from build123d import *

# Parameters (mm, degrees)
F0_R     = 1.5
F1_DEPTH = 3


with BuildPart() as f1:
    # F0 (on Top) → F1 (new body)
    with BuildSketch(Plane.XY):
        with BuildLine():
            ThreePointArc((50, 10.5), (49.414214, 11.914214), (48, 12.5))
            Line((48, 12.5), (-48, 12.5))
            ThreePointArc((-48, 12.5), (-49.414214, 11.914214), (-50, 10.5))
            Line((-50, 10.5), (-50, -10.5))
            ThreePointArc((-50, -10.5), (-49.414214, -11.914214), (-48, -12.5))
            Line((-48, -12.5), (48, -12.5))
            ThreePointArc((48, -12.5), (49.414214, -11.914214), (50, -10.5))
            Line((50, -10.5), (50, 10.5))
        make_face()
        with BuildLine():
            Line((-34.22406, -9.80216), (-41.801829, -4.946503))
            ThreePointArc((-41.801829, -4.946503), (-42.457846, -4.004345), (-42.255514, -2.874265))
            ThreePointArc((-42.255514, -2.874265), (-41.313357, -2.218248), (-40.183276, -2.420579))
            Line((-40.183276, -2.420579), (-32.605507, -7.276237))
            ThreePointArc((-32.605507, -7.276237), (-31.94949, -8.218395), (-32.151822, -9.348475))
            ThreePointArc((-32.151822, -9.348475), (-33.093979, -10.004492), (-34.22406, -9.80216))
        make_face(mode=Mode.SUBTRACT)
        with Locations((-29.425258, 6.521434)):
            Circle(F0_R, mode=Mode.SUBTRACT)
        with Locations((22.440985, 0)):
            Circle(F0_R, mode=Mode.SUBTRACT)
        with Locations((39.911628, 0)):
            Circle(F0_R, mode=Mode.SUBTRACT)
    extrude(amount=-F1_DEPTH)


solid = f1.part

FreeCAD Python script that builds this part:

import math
import FreeCAD as App
import Part
import Sketcher
from FreeCAD import Vector

doc = App.newDocument("Part")
body = doc.addObject("PartDesign::Body", "Body")

# Sketch on XY plane
sketch1 = body.newObject("Sketcher::SketchObject", "Sketch")
sketch1.AttachmentSupport = (doc.getObject("XY_Plane"), [""])
sketch1.MapMode = "FlatFace"
sketch1.addGeometry(Part.ArcOfCircle(Part.Circle(Vector(48, 10.5, 0), Vector(0, 0, 1), 2), math.radians(0), math.radians(90)), False)
sketch1.addGeometry(Part.LineSegment(Vector(48, 12.5, 0), Vector(-48, 12.5, 0)), False)
sketch1.addGeometry(Part.ArcOfCircle(Part.Circle(Vector(-48, 10.5, 0), Vector(0, 0, 1), 2), math.radians(90), math.radians(180)), False)
sketch1.addGeometry(Part.LineSegment(Vector(-50, 10.5, 0), Vector(-50, -10.5, 0)), False)
sketch1.addGeometry(Part.ArcOfCircle(Part.Circle(Vector(-48, -10.5, 0), Vector(0, 0, 1), 2), math.radians(180), math.radians(270)), False)
sketch1.addGeometry(Part.LineSegment(Vector(-48, -12.5, 0), Vector(48, -12.5, 0)), False)
sketch1.addGeometry(Part.ArcOfCircle(Part.Circle(Vector(48, -10.5, 0), Vector(0, 0, 1), 2), math.radians(-90), math.radians(0)), False)
sketch1.addGeometry(Part.LineSegment(Vector(50, -10.5, 0), Vector(50, 10.5, 0)), False)
sketch1.addGeometry(Part.ArcOfCircle(Part.Circle(Vector(-33.4, -8.5, 0), Vector(0, 0, 1), 1.5), math.radians(-123), math.radians(-33)), False)
sketch1.addGeometry(Part.LineSegment(Vector(-34.2, -9.8, 0), Vector(-41.8, -4.9, 0)), False)
sketch1.addGeometry(Part.ArcOfCircle(Part.Circle(Vector(-41, -3.7, 0), Vector(0, 0, 1), 1.5), math.radians(147), math.radians(237)), False)
sketch1.addGeometry(Part.ArcOfCircle(Part.Circle(Vector(-41, -3.7, 0), Vector(0, 0, 1), 1.5), math.radians(57), math.radians(147)), False)
sketch1.addGeometry(Part.LineSegment(Vector(-40.2, -2.4, 0), Vector(-32.6, -7.3, 0)), False)
sketch1.addGeometry(Part.ArcOfCircle(Part.Circle(Vector(-33.4, -8.5, 0), Vector(0, 0, 1), 1.5), math.radians(-33), math.radians(57)), False)
sketch1.addGeometry(Part.Circle(Vector(-29.4, 6.5, 0), Vector(0, 0, 1), 1.5), False)
sketch1.addGeometry(Part.Circle(Vector(22.4, 0, 0), Vector(0, 0, 1), 1.5), False)
sketch1.addGeometry(Part.Circle(Vector(39.9, 0, 0), Vector(0, 0, 1), 1.5), False)
sketch1.addConstraint(Sketcher.Constraint("Tangent", 0, 2, 1, 1))
sketch1.addConstraint(Sketcher.Constraint("Tangent", 1, 2, 2, 1))
sketch1.addConstraint(Sketcher.Constraint("Tangent", 2, 2, 3, 1))
sketch1.addConstraint(Sketcher.Constraint("Tangent", 3, 2, 4, 1))
sketch1.addConstraint(Sketcher.Constraint("Tangent", 4, 2, 5, 1))
sketch1.addConstraint(Sketcher.Constraint("Tangent", 5, 2, 6, 1))
sketch1.addConstraint(Sketcher.Constraint("Tangent", 6, 2, 7, 1))
sketch1.addConstraint(Sketcher.Constraint("Tangent", 7, 2, 0, 1))
sketch1.addConstraint(Sketcher.Constraint("Tangent", 8, 1, 9, 1))
sketch1.addConstraint(Sketcher.Constraint("Tangent", 9, 2, 10, 2))
sketch1.addConstraint(Sketcher.Constraint("Tangent", 10, 1, 11, 2))
sketch1.addConstraint(Sketcher.Constraint("Tangent", 11, 1, 12, 1))
sketch1.addConstraint(Sketcher.Constraint("Tangent", 12, 2, 13, 2))
sketch1.addConstraint(Sketcher.Constraint("Tangent", 13, 1, 8, 2))
sketch1.addConstraint(Sketcher.Constraint("Horizontal", 1))
sketch1.addConstraint(Sketcher.Constraint("Vertical", 3))
sketch1.addConstraint(Sketcher.Constraint("Horizontal", 5))
sketch1.addConstraint(Sketcher.Constraint("Vertical", 7))
sketch1.addConstraint(Sketcher.Constraint("Equal", 0, 2))
sketch1.addConstraint(Sketcher.Constraint("Equal", 2, 4))
sketch1.addConstraint(Sketcher.Constraint("Equal", 4, 6))
sketch1.addConstraint(Sketcher.Constraint("Equal", 8, 10))
sketch1.addConstraint(Sketcher.Constraint("Equal", 10, 11))
sketch1.addConstraint(Sketcher.Constraint("Equal", 11, 13))
sketch1.addConstraint(Sketcher.Constraint("Equal", 13, 14))
sketch1.addConstraint(Sketcher.Constraint("Equal", 14, 15))
sketch1.addConstraint(Sketcher.Constraint("Equal", 15, 16))
sketch1.addConstraint(Sketcher.Constraint("Symmetric", 0, 3, 4, 3, -1, 1))
sketch1.addConstraint(Sketcher.Constraint("PointOnObject", 15, 3, -1))
sketch1.addConstraint(Sketcher.Constraint("PointOnObject", 16, 3, -1))
sketch1.addConstraint(Sketcher.Constraint("Diameter", 14, 3.0))
sketch1.addConstraint(Sketcher.Constraint("Radius", 0, 1.999999))
sketch1.addConstraint(Sketcher.Constraint("DistanceX", 1, 2, 1, 1, 96.0))
sketch1.addConstraint(Sketcher.Constraint("DistanceY", 3, 2, 3, 1, 21.0))
sketch1.addConstraint(Sketcher.Constraint("Distance", 9, 8.999999))
sketch1.addConstraint(Sketcher.Constraint("DistanceY", 8, 3, -1, 1, 8.539199))
sketch1.addConstraint(Sketcher.Constraint("DistanceY", 4, 3, 9, 2, 5.553498))
sketch1.addConstraint(Sketcher.Constraint("DistanceX", 11, 3, -1, 1, 40.992552))
sketch1.addConstraint(Sketcher.Constraint("DistanceX", 8, 3, 15, 3, 55.855768))
sketch1.addConstraint(Sketcher.Constraint("DistanceX", 8, 3, 16, 3, 73.326411))
sketch1.addConstraint(Sketcher.Constraint("DistanceX", 14, 3, 0, 2, 77.425258))
sketch1.addConstraint(Sketcher.Constraint("DistanceX", 10, 1, 10, 3, 1.262962))
sketch1.addConstraint(Sketcher.Constraint("DistanceX", 8, 3, 13, 1, 1.262961))
sketch1.addConstraint(Sketcher.Constraint("DistanceY", -1, 1, 14, 3, 6.521434))
pad1 = body.newObject("PartDesign::Pad", "Pad")
pad1.Profile = sketch1
pad1.Length = 3
pad1.Reversed = True

doc.recompute()
